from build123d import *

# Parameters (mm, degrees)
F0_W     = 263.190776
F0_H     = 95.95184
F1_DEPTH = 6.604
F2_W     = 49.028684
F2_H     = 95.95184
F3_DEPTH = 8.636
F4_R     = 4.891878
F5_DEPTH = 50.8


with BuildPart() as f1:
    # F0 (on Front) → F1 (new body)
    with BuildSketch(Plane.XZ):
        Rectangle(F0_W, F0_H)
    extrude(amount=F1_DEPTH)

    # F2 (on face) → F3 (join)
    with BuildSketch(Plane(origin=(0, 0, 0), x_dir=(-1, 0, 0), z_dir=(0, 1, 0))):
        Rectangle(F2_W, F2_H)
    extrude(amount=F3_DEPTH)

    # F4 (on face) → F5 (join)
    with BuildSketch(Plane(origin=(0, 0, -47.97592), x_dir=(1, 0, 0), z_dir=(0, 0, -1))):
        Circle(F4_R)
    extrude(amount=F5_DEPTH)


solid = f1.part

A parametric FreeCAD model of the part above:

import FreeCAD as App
import Part
import Sketcher

V = App.Vector


def add_polygon(sketch, points):
    """Adds a closed chain of lines whose ends are joined by coincident constraints."""
    first, n = sketch.GeometryCount, len(points)
    for a, b in zip(points, points[1:] + points[:1]):
        sketch.addGeometry(Part.LineSegment(App.Vector(*a, 0), App.Vector(*b, 0)), False)
    for i in range(n):
        sketch.addConstraint(Sketcher.Constraint("Coincident", first + i, 2, first + (i + 1) % n, 1))

doc = App.newDocument("Part")
params = doc.addObject("Spreadsheet::Sheet", "Params")
for row, (alias, value) in enumerate([
    ("pad1_length", "0.26 in"),
    ("pad2_length", "0.34 in"),
    ("pad3_length", "2 in"),
], start=1):
    params.set(f"A{row}", alias)
    params.set(f"B{row}", "=" + value)
    params.setAlias(f"B{row}", alias)

body = doc.addObject("PartDesign::Body", "Body")

# Sketch on XZ plane
sketch1 = body.newObject("Sketcher::SketchObject", "Sketch")
sketch1.AttachmentSupport = (doc.getObject("XZ_Plane"), [""])
sketch1.MapMode = "FlatFace"
add_polygon(sketch1, [(-131.595388, 47.97592), (-131.595388, -47.97592), (131.595388, -47.97592), (131.595388, 47.97592)])  # lines 0-3
sketch1.addConstraint([
    Sketcher.Constraint("Vertical", 0),
    Sketcher.Constraint("Horizontal", 1),
    Sketcher.Constraint("Vertical", 2),
    Sketcher.Constraint("Horizontal", 3),
    Sketcher.Constraint("Symmetric", 0, 2, 2, 2, -1, 1),
    Sketcher.Constraint("DistanceY", 0, 2, 0, 1, 95.95184),
    Sketcher.Constraint("DistanceX", 1, 1, 1, 2, 263.190776),
])
pad1 = body.newObject("PartDesign::Pad", "Pad")
pad1.Profile = sketch1
pad1.setExpression("Length", "Params.pad1_length")

# Sketch on XZ plane
sketch2 = body.newObject("Sketcher::SketchObject", "Sketch001")
sketch2.AttachmentSupport = (doc.getObject("XZ_Plane"), [""])
sketch2.MapMode = "FlatFace"
add_polygon(sketch2, [(24.514342, 47.97592), (24.514342, -47.97592), (-24.514342, -47.97592), (-24.514342, 47.97592)])  # lines 0-3
sketch2.addConstraint([
    Sketcher.Constraint("Vertical", 0),
    Sketcher.Constraint("Horizontal", 1),
    Sketcher.Constraint("Vertical", 2),
    Sketcher.Constraint("Horizontal", 3),
    Sketcher.Constraint("Symmetric", 0, 2, 2, 2, -1, 1),
    Sketcher.Constraint("DistanceY", 0, 2, 0, 1, 95.95184),
    Sketcher.Constraint("DistanceX", 1, 2, 1, 1, 49.028684),
])
pad2 = body.newObject("PartDesign::Pad", "Pad001")
pad2.Profile = sketch2
pad2.setExpression("Length", "Params.pad2_length")
pad2.Reversed = True

# Sketch on XY plane
sketch3 = body.newObject("Sketcher::SketchObject", "Sketch002")
sketch3.AttachmentSupport = (doc.getObject("XY_Plane"), [""])
sketch3.MapMode = "FlatFace"
sketch3.AttachmentOffset = App.Placement(V(0, 0, -47.97592), App.Rotation())
sketch3.addGeometry(Part.Circle(V(0, 0, 0), V(0, 0, 1), 4.891878), False)
sketch3.addConstraint([
    Sketcher.Constraint("Coincident", 0, 3, -1, 1),
    Sketcher.Constraint("Diameter", 0, 9.783756),
])
pad3 = body.newObject("PartDesign::Pad", "Pad002")
pad3.Profile = sketch3
pad3.setExpression("Length", "Params.pad3_length")
pad3.Reversed = True

doc.recompute()
